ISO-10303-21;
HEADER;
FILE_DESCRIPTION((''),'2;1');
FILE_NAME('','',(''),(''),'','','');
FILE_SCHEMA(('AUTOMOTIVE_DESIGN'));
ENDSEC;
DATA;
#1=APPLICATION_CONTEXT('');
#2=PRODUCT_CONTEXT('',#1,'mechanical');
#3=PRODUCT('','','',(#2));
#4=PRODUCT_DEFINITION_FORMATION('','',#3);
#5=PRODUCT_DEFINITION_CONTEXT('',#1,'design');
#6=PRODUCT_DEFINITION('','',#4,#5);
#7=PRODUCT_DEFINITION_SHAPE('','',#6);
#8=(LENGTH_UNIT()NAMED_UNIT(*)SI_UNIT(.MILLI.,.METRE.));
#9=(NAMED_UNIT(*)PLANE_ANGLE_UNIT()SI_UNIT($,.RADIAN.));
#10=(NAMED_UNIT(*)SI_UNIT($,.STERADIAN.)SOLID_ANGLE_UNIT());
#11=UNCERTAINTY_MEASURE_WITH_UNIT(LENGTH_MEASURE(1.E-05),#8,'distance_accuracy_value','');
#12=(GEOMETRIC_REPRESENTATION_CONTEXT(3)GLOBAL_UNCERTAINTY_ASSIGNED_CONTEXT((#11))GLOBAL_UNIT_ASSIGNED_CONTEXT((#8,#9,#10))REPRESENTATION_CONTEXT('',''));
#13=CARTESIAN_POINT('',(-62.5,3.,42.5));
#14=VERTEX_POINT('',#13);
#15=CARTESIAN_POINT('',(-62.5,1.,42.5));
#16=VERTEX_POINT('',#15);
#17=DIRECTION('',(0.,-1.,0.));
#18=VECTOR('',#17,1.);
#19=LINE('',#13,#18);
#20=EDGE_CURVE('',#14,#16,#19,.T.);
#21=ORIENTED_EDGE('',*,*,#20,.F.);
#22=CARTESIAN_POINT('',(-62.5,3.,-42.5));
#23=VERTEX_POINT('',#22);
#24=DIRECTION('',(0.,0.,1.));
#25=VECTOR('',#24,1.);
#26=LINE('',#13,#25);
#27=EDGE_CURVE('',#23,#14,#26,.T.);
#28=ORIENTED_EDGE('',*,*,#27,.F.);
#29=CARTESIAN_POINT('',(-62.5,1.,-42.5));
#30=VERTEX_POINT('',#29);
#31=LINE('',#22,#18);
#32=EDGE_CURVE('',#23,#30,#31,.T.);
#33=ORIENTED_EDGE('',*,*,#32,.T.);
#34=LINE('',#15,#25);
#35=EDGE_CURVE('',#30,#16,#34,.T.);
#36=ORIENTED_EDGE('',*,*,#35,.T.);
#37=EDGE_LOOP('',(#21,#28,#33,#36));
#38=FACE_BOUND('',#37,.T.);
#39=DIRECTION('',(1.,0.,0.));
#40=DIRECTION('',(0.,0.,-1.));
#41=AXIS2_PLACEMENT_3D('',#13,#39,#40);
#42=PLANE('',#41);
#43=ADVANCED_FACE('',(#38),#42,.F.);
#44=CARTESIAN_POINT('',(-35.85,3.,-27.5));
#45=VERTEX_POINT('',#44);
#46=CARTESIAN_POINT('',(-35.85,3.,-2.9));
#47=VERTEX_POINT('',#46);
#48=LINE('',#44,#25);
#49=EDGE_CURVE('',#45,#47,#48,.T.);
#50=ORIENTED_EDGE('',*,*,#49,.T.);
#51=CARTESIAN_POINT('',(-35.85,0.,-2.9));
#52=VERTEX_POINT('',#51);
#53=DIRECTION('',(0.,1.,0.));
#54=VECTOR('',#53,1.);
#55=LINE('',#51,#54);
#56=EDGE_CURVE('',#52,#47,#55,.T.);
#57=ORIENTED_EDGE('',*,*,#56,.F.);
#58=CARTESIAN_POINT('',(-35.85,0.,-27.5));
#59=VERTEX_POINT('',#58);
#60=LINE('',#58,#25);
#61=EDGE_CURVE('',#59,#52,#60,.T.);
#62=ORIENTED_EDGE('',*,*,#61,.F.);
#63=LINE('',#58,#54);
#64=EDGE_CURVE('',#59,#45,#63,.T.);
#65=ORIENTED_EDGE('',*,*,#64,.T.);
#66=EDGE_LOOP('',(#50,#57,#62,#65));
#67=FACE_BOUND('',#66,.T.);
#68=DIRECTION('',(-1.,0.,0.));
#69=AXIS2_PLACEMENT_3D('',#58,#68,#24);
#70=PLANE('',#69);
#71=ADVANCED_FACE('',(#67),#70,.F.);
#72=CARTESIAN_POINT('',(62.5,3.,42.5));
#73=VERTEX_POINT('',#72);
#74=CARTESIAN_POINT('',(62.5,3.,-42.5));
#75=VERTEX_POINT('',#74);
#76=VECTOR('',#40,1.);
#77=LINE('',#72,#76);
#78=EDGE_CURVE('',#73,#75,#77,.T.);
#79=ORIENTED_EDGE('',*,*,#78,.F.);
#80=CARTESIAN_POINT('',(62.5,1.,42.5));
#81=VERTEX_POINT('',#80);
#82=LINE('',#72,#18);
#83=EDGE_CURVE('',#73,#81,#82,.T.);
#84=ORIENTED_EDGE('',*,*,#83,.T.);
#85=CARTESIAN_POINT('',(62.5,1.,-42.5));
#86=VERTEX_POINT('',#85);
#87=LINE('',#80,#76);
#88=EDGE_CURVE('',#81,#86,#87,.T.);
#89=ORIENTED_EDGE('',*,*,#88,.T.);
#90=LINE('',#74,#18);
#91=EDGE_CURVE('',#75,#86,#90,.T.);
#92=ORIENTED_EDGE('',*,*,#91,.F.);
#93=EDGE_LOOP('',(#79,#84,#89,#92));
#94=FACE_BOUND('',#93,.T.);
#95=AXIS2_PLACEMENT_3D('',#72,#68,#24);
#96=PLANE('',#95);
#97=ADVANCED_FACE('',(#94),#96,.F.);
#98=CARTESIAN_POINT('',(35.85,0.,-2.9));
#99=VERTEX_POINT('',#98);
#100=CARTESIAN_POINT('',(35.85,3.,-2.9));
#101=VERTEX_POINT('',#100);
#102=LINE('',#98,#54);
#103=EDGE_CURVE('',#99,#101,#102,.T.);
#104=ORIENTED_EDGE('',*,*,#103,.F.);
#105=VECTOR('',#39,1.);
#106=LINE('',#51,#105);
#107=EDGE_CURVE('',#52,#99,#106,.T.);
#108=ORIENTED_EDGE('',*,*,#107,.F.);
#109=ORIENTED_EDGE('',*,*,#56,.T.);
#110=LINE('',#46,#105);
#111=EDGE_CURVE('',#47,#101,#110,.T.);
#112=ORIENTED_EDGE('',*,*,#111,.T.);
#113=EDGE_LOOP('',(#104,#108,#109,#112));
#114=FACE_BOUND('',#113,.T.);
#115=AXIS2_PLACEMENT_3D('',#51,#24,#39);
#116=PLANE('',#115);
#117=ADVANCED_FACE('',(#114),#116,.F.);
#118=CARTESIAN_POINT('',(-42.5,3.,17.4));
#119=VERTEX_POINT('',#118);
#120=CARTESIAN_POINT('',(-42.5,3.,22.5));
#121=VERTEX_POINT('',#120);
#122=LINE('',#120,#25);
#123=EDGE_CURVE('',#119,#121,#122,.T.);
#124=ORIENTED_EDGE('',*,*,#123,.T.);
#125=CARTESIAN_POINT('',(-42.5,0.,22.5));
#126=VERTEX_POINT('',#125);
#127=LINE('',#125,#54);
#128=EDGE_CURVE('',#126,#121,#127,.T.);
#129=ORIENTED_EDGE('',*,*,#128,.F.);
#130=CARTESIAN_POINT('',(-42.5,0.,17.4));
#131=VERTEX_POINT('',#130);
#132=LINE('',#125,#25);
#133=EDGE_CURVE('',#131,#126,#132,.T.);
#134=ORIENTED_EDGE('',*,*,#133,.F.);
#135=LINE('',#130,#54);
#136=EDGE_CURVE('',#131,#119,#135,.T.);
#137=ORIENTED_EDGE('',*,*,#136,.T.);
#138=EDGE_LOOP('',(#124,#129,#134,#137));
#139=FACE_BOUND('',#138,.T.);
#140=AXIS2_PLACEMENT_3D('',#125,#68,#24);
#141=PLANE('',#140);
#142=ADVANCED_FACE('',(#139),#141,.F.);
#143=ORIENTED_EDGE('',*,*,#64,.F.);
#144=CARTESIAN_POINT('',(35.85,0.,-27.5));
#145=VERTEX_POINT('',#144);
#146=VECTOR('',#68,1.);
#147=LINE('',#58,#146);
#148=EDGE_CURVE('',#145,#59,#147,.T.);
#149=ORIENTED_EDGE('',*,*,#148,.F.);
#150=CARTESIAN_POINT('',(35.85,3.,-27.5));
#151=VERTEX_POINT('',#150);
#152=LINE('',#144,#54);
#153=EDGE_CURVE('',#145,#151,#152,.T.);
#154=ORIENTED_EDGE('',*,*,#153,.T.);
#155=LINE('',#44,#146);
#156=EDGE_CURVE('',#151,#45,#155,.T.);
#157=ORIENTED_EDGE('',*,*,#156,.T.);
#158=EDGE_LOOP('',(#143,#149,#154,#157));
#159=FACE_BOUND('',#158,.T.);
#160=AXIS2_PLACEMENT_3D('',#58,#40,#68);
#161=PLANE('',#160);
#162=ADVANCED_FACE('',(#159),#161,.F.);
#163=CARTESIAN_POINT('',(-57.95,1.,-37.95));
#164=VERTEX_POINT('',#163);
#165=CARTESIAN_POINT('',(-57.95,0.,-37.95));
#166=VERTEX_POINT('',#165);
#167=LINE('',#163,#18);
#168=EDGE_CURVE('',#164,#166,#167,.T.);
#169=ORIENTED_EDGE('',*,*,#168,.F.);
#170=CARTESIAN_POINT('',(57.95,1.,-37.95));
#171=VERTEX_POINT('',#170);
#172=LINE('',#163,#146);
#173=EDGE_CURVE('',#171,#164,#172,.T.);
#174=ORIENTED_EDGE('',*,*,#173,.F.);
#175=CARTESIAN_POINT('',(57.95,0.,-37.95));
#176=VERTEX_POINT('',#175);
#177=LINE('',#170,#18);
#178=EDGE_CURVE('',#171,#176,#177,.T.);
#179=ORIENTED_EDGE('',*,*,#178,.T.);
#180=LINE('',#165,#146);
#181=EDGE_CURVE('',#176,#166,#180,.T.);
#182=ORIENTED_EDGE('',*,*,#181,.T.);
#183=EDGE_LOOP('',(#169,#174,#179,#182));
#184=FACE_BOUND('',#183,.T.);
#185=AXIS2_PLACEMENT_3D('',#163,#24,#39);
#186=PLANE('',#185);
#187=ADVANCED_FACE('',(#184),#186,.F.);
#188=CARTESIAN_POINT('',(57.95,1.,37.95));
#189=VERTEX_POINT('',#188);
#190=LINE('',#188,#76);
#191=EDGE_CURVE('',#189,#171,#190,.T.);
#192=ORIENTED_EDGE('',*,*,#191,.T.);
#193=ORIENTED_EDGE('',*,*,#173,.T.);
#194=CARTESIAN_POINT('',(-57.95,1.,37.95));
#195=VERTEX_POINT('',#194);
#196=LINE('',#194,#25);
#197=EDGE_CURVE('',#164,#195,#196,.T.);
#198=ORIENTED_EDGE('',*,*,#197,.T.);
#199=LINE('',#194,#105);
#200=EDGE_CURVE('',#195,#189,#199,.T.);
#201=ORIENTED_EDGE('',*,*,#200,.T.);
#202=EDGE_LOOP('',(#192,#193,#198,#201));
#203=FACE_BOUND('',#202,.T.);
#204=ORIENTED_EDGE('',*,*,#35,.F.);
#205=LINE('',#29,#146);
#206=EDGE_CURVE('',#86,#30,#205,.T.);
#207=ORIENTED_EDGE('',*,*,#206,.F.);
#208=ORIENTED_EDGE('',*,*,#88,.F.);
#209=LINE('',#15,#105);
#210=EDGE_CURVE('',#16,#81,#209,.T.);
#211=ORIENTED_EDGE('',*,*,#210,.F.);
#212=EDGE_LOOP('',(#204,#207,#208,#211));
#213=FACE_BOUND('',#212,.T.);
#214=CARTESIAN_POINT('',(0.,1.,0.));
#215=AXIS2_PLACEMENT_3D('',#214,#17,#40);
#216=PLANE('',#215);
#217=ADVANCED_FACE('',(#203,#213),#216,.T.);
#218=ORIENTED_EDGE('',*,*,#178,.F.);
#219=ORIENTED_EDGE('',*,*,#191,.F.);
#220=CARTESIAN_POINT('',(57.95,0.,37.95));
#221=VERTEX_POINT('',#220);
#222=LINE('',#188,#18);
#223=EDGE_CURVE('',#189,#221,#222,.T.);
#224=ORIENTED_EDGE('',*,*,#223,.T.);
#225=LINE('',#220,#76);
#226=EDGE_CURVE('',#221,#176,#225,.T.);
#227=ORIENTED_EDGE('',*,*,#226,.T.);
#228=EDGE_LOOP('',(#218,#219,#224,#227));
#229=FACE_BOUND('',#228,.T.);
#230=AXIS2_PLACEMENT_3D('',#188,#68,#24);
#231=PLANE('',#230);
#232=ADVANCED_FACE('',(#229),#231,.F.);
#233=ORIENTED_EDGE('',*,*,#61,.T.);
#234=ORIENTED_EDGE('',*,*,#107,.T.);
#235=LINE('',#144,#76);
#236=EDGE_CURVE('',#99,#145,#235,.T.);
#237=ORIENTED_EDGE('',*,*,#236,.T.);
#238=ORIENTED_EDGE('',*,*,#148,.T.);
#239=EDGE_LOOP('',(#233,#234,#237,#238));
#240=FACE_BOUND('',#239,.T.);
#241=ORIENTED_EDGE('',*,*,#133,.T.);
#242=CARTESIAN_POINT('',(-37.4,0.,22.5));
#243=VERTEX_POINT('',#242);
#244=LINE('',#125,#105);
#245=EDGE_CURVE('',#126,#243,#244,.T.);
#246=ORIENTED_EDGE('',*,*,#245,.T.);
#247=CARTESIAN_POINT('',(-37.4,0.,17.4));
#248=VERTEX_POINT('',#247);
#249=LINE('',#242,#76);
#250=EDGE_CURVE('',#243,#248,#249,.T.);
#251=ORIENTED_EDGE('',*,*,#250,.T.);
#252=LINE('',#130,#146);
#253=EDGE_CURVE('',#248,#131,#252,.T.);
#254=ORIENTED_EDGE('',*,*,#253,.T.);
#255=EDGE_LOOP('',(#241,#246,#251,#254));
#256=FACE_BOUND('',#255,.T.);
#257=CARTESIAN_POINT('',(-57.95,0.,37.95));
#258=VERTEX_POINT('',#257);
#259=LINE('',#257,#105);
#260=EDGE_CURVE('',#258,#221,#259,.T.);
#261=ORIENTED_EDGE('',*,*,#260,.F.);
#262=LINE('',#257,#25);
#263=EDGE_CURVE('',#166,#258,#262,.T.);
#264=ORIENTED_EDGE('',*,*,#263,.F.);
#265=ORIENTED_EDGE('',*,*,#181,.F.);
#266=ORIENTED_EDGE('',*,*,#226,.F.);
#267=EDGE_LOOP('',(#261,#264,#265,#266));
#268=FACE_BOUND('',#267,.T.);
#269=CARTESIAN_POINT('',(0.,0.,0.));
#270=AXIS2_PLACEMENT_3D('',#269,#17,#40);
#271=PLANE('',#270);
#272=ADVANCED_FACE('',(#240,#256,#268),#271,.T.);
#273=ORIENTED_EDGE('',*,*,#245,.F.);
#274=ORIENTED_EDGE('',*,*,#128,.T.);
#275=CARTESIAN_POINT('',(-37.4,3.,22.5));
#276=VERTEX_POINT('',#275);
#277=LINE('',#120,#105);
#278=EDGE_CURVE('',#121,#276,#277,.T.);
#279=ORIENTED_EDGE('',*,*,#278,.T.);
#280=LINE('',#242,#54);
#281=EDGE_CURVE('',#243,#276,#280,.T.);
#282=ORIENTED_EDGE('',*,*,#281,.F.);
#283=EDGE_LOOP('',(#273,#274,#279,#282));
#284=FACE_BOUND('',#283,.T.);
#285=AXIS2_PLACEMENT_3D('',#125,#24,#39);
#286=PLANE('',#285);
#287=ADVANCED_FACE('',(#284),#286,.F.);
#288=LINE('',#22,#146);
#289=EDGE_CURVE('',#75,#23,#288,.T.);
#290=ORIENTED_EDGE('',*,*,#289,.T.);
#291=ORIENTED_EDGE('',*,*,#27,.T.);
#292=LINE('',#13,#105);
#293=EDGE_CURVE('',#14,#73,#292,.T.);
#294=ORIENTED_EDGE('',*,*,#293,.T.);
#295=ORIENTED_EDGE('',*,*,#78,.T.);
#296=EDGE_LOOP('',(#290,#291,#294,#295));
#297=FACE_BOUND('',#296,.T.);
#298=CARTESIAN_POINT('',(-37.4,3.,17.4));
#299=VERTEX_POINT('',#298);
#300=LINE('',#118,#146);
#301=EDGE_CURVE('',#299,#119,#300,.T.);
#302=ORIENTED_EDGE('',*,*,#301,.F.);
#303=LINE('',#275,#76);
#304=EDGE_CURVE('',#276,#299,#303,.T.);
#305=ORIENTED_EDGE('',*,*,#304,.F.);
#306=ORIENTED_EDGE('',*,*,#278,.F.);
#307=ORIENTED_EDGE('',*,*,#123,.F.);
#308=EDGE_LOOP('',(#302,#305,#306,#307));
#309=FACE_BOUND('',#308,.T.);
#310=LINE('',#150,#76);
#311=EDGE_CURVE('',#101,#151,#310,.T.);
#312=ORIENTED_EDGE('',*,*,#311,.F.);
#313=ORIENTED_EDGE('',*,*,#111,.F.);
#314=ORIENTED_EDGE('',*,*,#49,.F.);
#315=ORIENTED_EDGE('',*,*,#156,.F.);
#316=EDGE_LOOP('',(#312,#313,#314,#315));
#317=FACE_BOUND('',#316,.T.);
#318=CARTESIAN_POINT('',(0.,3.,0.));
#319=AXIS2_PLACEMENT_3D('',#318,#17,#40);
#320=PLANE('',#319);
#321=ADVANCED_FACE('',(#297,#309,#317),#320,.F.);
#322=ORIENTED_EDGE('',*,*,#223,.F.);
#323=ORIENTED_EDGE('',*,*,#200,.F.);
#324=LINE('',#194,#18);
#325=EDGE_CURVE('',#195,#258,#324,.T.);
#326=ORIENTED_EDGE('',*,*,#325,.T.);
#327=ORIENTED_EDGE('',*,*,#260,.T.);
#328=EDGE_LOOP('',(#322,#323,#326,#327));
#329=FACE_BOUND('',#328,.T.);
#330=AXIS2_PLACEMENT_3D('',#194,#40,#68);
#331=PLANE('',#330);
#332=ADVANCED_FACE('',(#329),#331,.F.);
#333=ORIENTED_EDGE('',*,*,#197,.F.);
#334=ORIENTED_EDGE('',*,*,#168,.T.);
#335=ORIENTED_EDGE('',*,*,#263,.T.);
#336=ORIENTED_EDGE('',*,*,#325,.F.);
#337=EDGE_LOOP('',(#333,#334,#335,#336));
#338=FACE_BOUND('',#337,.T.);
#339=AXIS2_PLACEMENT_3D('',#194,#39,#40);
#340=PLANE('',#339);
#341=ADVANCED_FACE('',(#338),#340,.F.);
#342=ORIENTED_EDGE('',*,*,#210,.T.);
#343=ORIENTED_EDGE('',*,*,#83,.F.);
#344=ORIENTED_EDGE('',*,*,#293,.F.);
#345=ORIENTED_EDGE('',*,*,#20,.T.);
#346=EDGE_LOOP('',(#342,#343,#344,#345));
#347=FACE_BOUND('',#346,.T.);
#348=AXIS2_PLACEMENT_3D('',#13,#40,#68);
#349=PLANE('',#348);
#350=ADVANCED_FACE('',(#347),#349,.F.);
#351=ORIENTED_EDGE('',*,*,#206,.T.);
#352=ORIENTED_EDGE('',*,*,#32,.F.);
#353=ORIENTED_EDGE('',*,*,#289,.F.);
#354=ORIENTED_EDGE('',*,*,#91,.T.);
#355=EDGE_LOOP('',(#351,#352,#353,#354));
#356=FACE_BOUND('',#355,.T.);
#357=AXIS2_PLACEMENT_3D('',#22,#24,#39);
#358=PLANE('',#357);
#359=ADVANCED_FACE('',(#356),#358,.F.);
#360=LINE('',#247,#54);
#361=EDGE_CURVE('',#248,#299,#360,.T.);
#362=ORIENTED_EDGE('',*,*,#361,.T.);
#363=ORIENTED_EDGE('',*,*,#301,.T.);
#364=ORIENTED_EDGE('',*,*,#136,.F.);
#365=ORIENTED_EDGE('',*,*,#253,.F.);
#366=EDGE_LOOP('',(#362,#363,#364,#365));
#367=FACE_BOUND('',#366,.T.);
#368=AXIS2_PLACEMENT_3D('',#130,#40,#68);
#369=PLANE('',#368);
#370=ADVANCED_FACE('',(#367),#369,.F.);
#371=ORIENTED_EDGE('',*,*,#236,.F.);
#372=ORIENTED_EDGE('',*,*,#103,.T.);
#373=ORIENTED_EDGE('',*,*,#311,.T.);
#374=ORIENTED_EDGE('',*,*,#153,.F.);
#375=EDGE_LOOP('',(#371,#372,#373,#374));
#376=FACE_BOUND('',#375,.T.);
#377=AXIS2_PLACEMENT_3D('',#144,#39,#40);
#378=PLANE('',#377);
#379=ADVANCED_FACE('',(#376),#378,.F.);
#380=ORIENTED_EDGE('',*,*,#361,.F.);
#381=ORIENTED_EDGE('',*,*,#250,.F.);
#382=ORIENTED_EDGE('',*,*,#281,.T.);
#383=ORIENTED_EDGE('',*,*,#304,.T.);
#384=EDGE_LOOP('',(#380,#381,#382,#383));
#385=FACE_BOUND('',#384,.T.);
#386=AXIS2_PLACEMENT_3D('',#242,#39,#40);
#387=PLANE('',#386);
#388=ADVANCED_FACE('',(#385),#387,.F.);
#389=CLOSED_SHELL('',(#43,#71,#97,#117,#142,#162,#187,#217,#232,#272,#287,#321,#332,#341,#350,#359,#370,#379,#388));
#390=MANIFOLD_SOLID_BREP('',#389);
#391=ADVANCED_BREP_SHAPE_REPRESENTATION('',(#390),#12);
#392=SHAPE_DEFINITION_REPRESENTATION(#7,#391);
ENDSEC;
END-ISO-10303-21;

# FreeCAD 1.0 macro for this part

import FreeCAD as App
import Part
import Sketcher
Q = App.Units.Quantity

doc = App.newDocument("Part")
params = doc.addObject("Spreadsheet::Sheet", "Params")
for row, (alias, value) in enumerate([
    ("sketch1_width", "115.9 mm"),
    ("sketch1_height", "75.9 mm"),
    ("pad1_length", "1 mm"),
    ("sketch2_width", "125 mm"),
    ("sketch2_height", "85 mm"),
    ("pad2_length", "2 mm"),
    ("sketch3_width", "71.7 mm"),
    ("sketch3_width2", "5.1 mm"),
    ("sketch3_height", "24.6 mm"),
], start=1):
    params.set(f"A{row}", alias)
    params.set(f"B{row}", "=" + value)
    params.setAlias(f"B{row}", alias)

body = doc.addObject("PartDesign::Body", "Body")

sketch1 = doc.addObject("Sketcher::SketchObject", "Sketch")
body.addObject(sketch1)
sketch1.AttachmentSupport = (doc.XZ_Plane, [""])
sketch1.MapMode = "FlatFace"
sketch1.addGeometry(Part.LineSegment(App.Vector(-57.95, -37.95, 0), App.Vector(-57.95, 37.95, 0)), False)
sketch1.addGeometry(Part.LineSegment(App.Vector(-57.95, 37.95, 0), App.Vector(57.95, 37.95, 0)), False)
sketch1.addGeometry(Part.LineSegment(App.Vector(57.95, 37.95, 0), App.Vector(57.95, -37.95, 0)), False)
sketch1.addGeometry(Part.LineSegment(App.Vector(57.95, -37.95, 0), App.Vector(-57.95, -37.95, 0)), False)
sketch1.addConstraint(Sketcher.Constraint("Coincident", 0, 2, 1, 1))
sketch1.addConstraint(Sketcher.Constraint("Coincident", 1, 2, 2, 1))
sketch1.addConstraint(Sketcher.Constraint("Coincident", 2, 2, 3, 1))
sketch1.addConstraint(Sketcher.Constraint("Coincident", 3, 2, 0, 1))
sketch1.addConstraint(Sketcher.Constraint("Vertical", 0))
sketch1.addConstraint(Sketcher.Constraint("Horizontal", 1))
sketch1.addConstraint(Sketcher.Constraint("Vertical", 2))
sketch1.addConstraint(Sketcher.Constraint("Horizontal", 3))
sketch1.addConstraint(Sketcher.Constraint("Symmetric", 0, 2, 2, 2, -1, 1))
sketch1.addConstraint(Sketcher.Constraint("DistanceX", 1, 1, 1, 2, Q("115.9 mm")))
sketch1.addConstraint(Sketcher.Constraint("DistanceY", 0, 1, 0, 2, Q("75.9 mm")))
sketch1.setExpression("Constraints[9]", "Params.sketch1_width")
sketch1.setExpression("Constraints[10]", "Params.sketch1_height")
pad1 = doc.addObject("PartDesign::Pad", "Pad")
body.addObject(pad1)
pad1.Profile = sketch1
pad1.setExpression("Length", "Params.pad1_length")
pad1.Reversed = True

sketch2 = doc.addObject("Sketcher::SketchObject", "Sketch001")
body.addObject(sketch2)
sketch2.AttachmentSupport = (doc.XZ_Plane, [""])
sketch2.MapMode = "FlatFace"
sketch2.AttachmentOffset = App.Placement(App.Vector(0, 0, -1), App.Rotation())
sketch2.addGeometry(Part.LineSegment(App.Vector(-62.5, -42.5, 0), App.Vector(-62.5, 42.5, 0)), False)
sketch2.addGeometry(Part.LineSegment(App.Vector(-62.5, 42.5, 0), App.Vector(62.5, 42.5, 0)), False)
sketch2.addGeometry(Part.LineSegment(App.Vector(62.5, 42.5, 0), App.Vector(62.5, -42.5, 0)), False)
sketch2.addGeometry(Part.LineSegment(App.Vector(62.5, -42.5, 0), App.Vector(-62.5, -42.5, 0)), False)
sketch2.addConstraint(Sketcher.Constraint("Coincident", 0, 2, 1, 1))
sketch2.addConstraint(Sketcher.Constraint("Coincident", 1, 2, 2, 1))
sketch2.addConstraint(Sketcher.Constraint("Coincident", 2, 2, 3, 1))
sketch2.addConstraint(Sketcher.Constraint("Coincident", 3, 2, 0, 1))
sketch2.addConstraint(Sketcher.Constraint("Vertical", 0))
sketch2.addConstraint(Sketcher.Constraint("Horizontal", 1))
sketch2.addConstraint(Sketcher.Constraint("Vertical", 2))
sketch2.addConstraint(Sketcher.Constraint("Horizontal", 3))
sketch2.addConstraint(Sketcher.Constraint("Symmetric", 0, 2, 2, 2, -1, 1))
sketch2.addConstraint(Sketcher.Constraint("DistanceX", 1, 1, 1, 2, Q("125 mm")))
sketch2.addConstraint(Sketcher.Constraint("DistanceY", 0, 1, 0, 2, Q("85 mm")))
sketch2.setExpression("Constraints[9]", "Params.sketch2_width")
sketch2.setExpression("Constraints[10]", "Params.sketch2_height")
pad2 = doc.addObject("PartDesign::Pad", "Pad001")
body.addObject(pad2)
pad2.Profile = sketch2
pad2.setExpression("Length", "Params.pad2_length")
pad2.Reversed = True

sketch3 = doc.addObject("Sketcher::SketchObject", "Sketch002")
body.addObject(sketch3)
sketch3.AttachmentSupport = (doc.XZ_Plane, [""])
sketch3.MapMode = "FlatFace"
sketch3.AttachmentOffset = App.Placement(App.Vector(0, 0, -3), App.Rotation())
sketch3.addGeometry(Part.LineSegment(App.Vector(-35.85, -27.5, 0), App.Vector(-35.85, -2.9, 0)), False)
sketch3.addGeometry(Part.LineSegment(App.Vector(-35.85, -2.9, 0), App.Vector(35.85, -2.9, 0)), False)
sketch3.addGeometry(Part.LineSegment(App.Vector(35.85, -2.9, 0), App.Vector(35.85, -27.5, 0)), False)
sketch3.addGeometry(Part.LineSegment(App.Vector(35.85, -27.5, 0), App.Vector(-35.85, -27.5, 0)), False)
sketch3.addGeometry(Part.LineSegment(App.Vector(-42.5, 17.4, 0), App.Vector(-42.5, 22.5, 0)), False)
sketch3.addGeometry(Part.LineSegment(App.Vector(-42.5, 22.5, 0), App.Vector(-37.4, 22.5, 0)), False)
sketch3.addGeometry(Part.LineSegment(App.Vector(-37.4, 22.5, 0), App.Vector(-37.4, 17.4, 0)), False)
sketch3.addGeometry(Part.LineSegment(App.Vector(-37.4, 17.4, 0), App.Vector(-42.5, 17.4, 0)), False)
sketch3.addConstraint(Sketcher.Constraint("Coincident", 0, 2, 1, 1))
sketch3.addConstraint(Sketcher.Constraint("Coincident", 1, 2, 2, 1))
sketch3.addConstraint(Sketcher.Constraint("Coincident", 2, 2, 3, 1))
sketch3.addConstraint(Sketcher.Constraint("Coincident", 3, 2, 0, 1))
sketch3.addConstraint(Sketcher.Constraint("Coincident", 4, 2, 5, 1))
sketch3.addConstraint(Sketcher.Constraint("Coincident", 5, 2, 6, 1))
sketch3.addConstraint(Sketcher.Constraint("Coincident", 6, 2, 7, 1))
sketch3.addConstraint(Sketcher.Constraint("Coincident", 7, 2, 4, 1))
sketch3.addConstraint(Sketcher.Constraint("Vertical", 0))
sketch3.addConstraint(Sketcher.Constraint("Horizontal", 1))
sketch3.addConstraint(Sketcher.Constraint("Vertical", 2))
sketch3.addConstraint(Sketcher.Constraint("Horizontal", 3))
sketch3.addConstraint(Sketcher.Constraint("Vertical", 4))
sketch3.addConstraint(Sketcher.Constraint("Horizontal", 5))
sketch3.addConstraint(Sketcher.Constraint("Vertical", 6))
sketch3.addConstraint(Sketcher.Constraint("Horizontal", 7))
sketch3.addConstraint(Sketcher.Constraint("Equal", 7, 4))
sketch3.addConstraint(Sketcher.Constraint("DistanceX", 1, 1, 1, 2, Q("71.7 mm")))
sketch3.addConstraint(Sketcher.Constraint("DistanceX", 5, 1, 5, 2, Q("5.1 mm")))
sketch3.addConstraint(Sketcher.Constraint("DistanceY", 0, 1, 0, 2, Q("24.6 mm")))
sketch3.addConstraint(Sketcher.Constraint("DistanceY", 3, 2, 4, 2, Q("50 mm")))
sketch3.addConstraint(Sketcher.Constraint("DistanceY", 0, 2, -1, 1, Q("2.9 mm")))
sketch3.addConstraint(Sketcher.Constraint("DistanceX", 4, 2, -1, 1, Q("42.5 mm")))
sketch3.addConstraint(Sketcher.Constraint("DistanceX", 0, 2, -1, 1, Q("35.85 mm")))
sketch3.setExpression("Constraints[17]", "Params.sketch3_width")
sketch3.setExpression("Constraints[18]", "Params.sketch3_width2")
sketch3.setExpression("Constraints[19]", "Params.sketch3_height")
pocket1 = doc.addObject("PartDesign::Pocket", "Pocket")
body.addObject(pocket1)
pocket1.Profile = sketch3
pocket1.Type = "ThroughAll"
pocket1.Reversed = True

doc.recompute()
